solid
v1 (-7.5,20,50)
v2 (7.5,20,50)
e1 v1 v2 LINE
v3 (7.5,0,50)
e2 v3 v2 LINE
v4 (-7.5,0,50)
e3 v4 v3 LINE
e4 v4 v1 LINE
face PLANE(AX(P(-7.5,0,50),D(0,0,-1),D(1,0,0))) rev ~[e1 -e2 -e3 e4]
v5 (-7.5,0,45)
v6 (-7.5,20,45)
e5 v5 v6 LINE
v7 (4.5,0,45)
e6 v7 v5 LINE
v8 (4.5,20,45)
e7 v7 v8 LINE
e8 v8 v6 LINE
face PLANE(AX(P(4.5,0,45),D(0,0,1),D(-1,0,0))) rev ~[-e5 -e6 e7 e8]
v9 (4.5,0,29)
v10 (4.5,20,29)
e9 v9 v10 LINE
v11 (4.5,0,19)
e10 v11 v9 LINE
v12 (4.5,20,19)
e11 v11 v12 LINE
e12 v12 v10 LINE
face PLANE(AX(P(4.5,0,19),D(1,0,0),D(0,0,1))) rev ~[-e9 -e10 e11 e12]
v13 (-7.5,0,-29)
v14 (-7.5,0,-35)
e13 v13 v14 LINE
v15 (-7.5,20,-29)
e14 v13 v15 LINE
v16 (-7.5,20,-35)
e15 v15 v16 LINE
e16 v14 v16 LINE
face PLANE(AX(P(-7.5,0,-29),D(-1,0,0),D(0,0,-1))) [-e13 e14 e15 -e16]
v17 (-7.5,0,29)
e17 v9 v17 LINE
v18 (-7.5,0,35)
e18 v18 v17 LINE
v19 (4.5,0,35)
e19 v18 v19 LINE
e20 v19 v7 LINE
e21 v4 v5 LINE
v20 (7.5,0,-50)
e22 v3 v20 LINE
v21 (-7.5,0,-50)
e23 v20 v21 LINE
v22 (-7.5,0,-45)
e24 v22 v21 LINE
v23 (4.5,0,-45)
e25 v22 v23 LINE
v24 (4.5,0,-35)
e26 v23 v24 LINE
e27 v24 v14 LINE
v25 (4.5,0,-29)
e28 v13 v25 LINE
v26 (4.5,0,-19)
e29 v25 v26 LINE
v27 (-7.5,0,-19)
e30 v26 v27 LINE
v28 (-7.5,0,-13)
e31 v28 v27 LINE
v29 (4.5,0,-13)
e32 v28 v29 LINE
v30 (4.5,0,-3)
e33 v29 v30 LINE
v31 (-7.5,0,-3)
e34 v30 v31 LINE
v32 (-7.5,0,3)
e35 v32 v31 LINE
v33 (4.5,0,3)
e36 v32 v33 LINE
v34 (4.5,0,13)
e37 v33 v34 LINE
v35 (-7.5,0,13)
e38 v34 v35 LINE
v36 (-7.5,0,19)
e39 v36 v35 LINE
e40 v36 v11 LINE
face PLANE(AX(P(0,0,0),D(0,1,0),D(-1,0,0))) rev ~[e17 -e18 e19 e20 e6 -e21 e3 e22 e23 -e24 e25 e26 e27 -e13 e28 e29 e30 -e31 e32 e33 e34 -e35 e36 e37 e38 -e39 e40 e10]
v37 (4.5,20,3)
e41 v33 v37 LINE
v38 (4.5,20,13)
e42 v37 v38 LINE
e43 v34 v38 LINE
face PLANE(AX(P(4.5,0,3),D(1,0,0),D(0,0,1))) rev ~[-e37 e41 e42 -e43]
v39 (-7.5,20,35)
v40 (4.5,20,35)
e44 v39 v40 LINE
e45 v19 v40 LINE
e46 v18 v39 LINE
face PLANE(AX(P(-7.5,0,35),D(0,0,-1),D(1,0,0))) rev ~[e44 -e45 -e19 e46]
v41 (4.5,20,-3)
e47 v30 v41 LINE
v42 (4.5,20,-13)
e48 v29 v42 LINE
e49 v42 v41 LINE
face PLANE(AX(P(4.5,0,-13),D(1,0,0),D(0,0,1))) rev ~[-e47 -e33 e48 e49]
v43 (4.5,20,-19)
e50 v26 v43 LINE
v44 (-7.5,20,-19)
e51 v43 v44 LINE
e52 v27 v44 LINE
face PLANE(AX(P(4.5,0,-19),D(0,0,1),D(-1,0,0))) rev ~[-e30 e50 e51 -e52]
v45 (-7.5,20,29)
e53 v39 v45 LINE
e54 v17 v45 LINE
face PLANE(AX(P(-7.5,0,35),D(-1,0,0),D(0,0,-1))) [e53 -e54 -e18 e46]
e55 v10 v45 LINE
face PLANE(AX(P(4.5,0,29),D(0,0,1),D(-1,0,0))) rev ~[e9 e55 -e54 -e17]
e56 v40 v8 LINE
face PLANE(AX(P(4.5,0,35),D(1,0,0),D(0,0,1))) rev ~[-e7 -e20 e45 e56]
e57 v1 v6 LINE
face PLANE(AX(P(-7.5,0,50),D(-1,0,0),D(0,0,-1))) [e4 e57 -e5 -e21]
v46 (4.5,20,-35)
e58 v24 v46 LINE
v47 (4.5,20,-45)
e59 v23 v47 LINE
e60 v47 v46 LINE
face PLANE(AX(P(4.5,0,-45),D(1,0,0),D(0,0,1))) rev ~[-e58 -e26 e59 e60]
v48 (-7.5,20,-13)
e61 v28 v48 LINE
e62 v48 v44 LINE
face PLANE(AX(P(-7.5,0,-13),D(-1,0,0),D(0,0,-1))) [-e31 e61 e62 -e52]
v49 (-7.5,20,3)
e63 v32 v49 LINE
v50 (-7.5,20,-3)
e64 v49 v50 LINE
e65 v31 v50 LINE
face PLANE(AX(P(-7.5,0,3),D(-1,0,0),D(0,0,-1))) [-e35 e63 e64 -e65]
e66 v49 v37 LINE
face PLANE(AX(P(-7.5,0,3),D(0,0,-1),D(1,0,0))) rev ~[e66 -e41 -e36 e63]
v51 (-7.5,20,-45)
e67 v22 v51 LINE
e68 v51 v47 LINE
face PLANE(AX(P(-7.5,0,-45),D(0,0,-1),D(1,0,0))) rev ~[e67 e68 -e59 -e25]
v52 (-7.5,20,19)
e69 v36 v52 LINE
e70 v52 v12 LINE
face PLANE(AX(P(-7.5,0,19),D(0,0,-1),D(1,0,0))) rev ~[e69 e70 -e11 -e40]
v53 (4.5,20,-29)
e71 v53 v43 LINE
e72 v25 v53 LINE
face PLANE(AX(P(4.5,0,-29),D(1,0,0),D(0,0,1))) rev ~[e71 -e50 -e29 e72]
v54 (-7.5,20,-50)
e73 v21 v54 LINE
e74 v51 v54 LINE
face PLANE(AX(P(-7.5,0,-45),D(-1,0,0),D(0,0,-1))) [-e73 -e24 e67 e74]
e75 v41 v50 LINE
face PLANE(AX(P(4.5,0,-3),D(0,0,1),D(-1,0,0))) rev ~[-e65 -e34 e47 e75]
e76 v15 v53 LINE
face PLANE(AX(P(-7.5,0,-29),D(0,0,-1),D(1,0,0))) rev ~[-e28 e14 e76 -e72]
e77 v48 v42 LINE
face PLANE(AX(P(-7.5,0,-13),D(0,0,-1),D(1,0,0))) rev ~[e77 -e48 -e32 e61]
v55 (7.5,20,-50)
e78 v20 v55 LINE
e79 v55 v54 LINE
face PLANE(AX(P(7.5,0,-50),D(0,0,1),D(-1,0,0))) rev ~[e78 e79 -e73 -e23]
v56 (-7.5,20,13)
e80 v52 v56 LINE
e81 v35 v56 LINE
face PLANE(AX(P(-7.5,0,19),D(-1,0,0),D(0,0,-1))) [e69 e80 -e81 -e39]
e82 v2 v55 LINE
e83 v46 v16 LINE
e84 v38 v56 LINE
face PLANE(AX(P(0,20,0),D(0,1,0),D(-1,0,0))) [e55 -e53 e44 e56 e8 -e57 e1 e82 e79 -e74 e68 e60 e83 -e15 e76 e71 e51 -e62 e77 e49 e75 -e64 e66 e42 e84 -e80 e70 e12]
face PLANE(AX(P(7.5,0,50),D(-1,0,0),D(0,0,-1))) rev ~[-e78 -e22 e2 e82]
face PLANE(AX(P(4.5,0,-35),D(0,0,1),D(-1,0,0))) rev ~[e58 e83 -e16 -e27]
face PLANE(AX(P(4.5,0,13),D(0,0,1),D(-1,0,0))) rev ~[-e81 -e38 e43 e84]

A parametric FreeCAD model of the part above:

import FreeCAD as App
import Part
import Sketcher
from FreeCAD import Vector

doc = App.newDocument("Part")
body = doc.addObject("PartDesign::Body", "Body")

sketch1 = body.newObject("Sketcher::SketchObject", "Sketch")
sketch1.AttachmentSupport = (doc.getObject("XZ_Plane"), [""])
sketch1.MapMode = "FlatFace"
sketch1.addGeometry([
    Part.LineSegment(Vector(-8, 45, 0), Vector(-8, 50, 0)),
    Part.LineSegment(Vector(-8, 50, 0), Vector(8, 50, 0)),
    Part.LineSegment(Vector(8, 50, 0), Vector(8, -50, 0)),
    Part.LineSegment(Vector(8, -50, 0), Vector(-8, -50, 0)),
    Part.LineSegment(Vector(-8, -50, 0), Vector(-8, -45, 0)),
    Part.LineSegment(Vector(-8, -45, 0), Vector(4, -45, 0)),
    Part.LineSegment(Vector(4, -45, 0), Vector(4, -35, 0)),
    Part.LineSegment(Vector(4, -35, 0), Vector(-8, -35, 0)),
    Part.LineSegment(Vector(-8, -35, 0), Vector(-8, -29, 0)),
    Part.LineSegment(Vector(-8, -29, 0), Vector(4, -29, 0)),
    Part.LineSegment(Vector(4, -29, 0), Vector(4, -19, 0)),
    Part.LineSegment(Vector(4, -19, 0), Vector(-8, -19, 0)),
    Part.LineSegment(Vector(-8, -19, 0), Vector(-8, -13, 0)),
    Part.LineSegment(Vector(-8, -13, 0), Vector(4, -13, 0)),
    Part.LineSegment(Vector(4, -13, 0), Vector(4, -3, 0)),
    Part.LineSegment(Vector(4, -3, 0), Vector(-8, -3, 0)),
    Part.LineSegment(Vector(-8, -3, 0), Vector(-8, 3, 0)),
    Part.LineSegment(Vector(-8, 3, 0), Vector(4, 3, 0)),
    Part.LineSegment(Vector(4, 3, 0), Vector(4, 13, 0)),
    Part.LineSegment(Vector(4, 13, 0), Vector(-8, 13, 0)),
    Part.LineSegment(Vector(-8, 13, 0), Vector(-8, 19, 0)),
    Part.LineSegment(Vector(-8, 19, 0), Vector(4, 19, 0)),
    Part.LineSegment(Vector(4, 19, 0), Vector(4, 29, 0)),
    Part.LineSegment(Vector(4, 29, 0), Vector(-8, 29, 0)),
    Part.LineSegment(Vector(-8, 29, 0), Vector(-8, 35, 0)),
    Part.LineSegment(Vector(-8, 35, 0), Vector(4, 35, 0)),
    Part.LineSegment(Vector(4, 35, 0), Vector(4, 45, 0)),
    Part.LineSegment(Vector(4, 45, 0), Vector(-8, 45, 0)),
], False)
sketch1.addConstraint([
    Sketcher.Constraint("Coincident", 0, 2, 1, 1),
    Sketcher.Constraint("Coincident", 1, 2, 2, 1),
    Sketcher.Constraint("Coincident", 2, 2, 3, 1),
    Sketcher.Constraint("Coincident", 3, 2, 4, 1),
    Sketcher.Constraint("Coincident", 4, 2, 5, 1),
    Sketcher.Constraint("Coincident", 5, 2, 6, 1),
    Sketcher.Constraint("Coincident", 6, 2, 7, 1),
    Sketcher.Constraint("Coincident", 7, 2, 8, 1),
    Sketcher.Constraint("Coincident", 8, 2, 9, 1),
    Sketcher.Constraint("Coincident", 9, 2, 10, 1),
    Sketcher.Constraint("Coincident", 10, 2, 11, 1),
    Sketcher.Constraint("Coincident", 11, 2, 12, 1),
    Sketcher.Constraint("Coincident", 12, 2, 13, 1),
    Sketcher.Constraint("Coincident", 13, 2, 14, 1),
    Sketcher.Constraint("Coincident", 14, 2, 15, 1),
    Sketcher.Constraint("Coincident", 15, 2, 16, 1),
    Sketcher.Constraint("Coincident", 16, 2, 17, 1),
    Sketcher.Constraint("Coincident", 17, 2, 18, 1),
    Sketcher.Constraint("Coincident", 18, 2, 19, 1),
    Sketcher.Constraint("Coincident", 19, 2, 20, 1),
    Sketcher.Constraint("Coincident", 20, 2, 21, 1),
    Sketcher.Constraint("Coincident", 21, 2, 22, 1),
    Sketcher.Constraint("Coincident", 22, 2, 23, 1),
    Sketcher.Constraint("Coincident", 23, 2, 24, 1),
    Sketcher.Constraint("Coincident", 24, 2, 25, 1),
    Sketcher.Constraint("Coincident", 25, 2, 26, 1),
    Sketcher.Constraint("Coincident", 26, 2, 27, 1),
    Sketcher.Constraint("Coincident", 27, 2, 0, 1),
    Sketcher.Constraint("Vertical", 0),
    Sketcher.Constraint("Horizontal", 1),
    Sketcher.Constraint("Vertical", 2),
    Sketcher.Constraint("Horizontal", 3),
    Sketcher.Constraint("Vertical", 4),
    Sketcher.Constraint("Horizontal", 5),
    Sketcher.Constraint("Vertical", 6),
    Sketcher.Constraint("Horizontal", 7),
    Sketcher.Constraint("Vertical", 8),
    Sketcher.Constraint("Horizontal", 9),
    Sketcher.Constraint("Vertical", 10),
    Sketcher.Constraint("Horizontal", 11),
    Sketcher.Constraint("Vertical", 12),
    Sketcher.Constraint("Horizontal", 13),
    Sketcher.Constraint("Vertical", 14),
    Sketcher.Constraint("Horizontal", 15),
    Sketcher.Constraint("Vertical", 16),
    Sketcher.Constraint("Horizontal", 17),
    Sketcher.Constraint("Vertical", 18),
    Sketcher.Constraint("Horizontal", 19),
    Sketcher.Constraint("Vertical", 20),
    Sketcher.Constraint("Horizontal", 21),
    Sketcher.Constraint("Vertical", 22),
    Sketcher.Constraint("Horizontal", 23),
    Sketcher.Constraint("Vertical", 24),
    Sketcher.Constraint("Horizontal", 25),
    Sketcher.Constraint("Vertical", 26),
    Sketcher.Constraint("Horizontal", 27),
    Sketcher.Constraint("Symmetric", 0, 2, 2, 2, -1, 1),
    Sketcher.Constraint("Symmetric", 14, 2, 17, 2, -1),
    Sketcher.Constraint("Symmetric", 12, 2, 19, 2, -1),
    Sketcher.Constraint("Symmetric", 10, 2, 21, 2, -1),
    Sketcher.Constraint("Symmetric", 8, 2, 23, 2, -1),
    Sketcher.Constraint("Symmetric", 6, 2, 25, 2, -1),
    Sketcher.Constraint("Symmetric", 4, 2, 27, 2, -1),
    Sketcher.Constraint("Vertical", 4, 2, 7, 2),
    Sketcher.Constraint("Vertical", 6, 2, 9, 2),
    Sketcher.Constraint("Vertical", 8, 2, 11, 2),
    Sketcher.Constraint("Vertical", 10, 2, 13, 2),
    Sketcher.Constraint("Vertical", 12, 2, 15, 2),
    Sketcher.Constraint("Equal", 6, 10),
    Sketcher.Constraint("Equal", 8, 12),
    Sketcher.Constraint("Equal", 10, 14),
    Sketcher.Constraint("Equal", 12, 16),
    Sketcher.Constraint("DistanceX", 1, 1, 1, 2, 15.0),
    Sketcher.Constraint("DistanceX", 5, 1, 5, 2, 12.0),
    Sketcher.Constraint("DistanceY", 0, 1, 0, 2, 5.0),
    Sketcher.Constraint("DistanceY", 2, 2, 2, 1, 100.0),
    Sketcher.Constraint("DistanceY", 6, 1, 6, 2, 10.0),
])
pad1 = body.newObject("PartDesign::Pad", "Pad")
pad1.Profile = sketch1
pad1.Length = 20
pad1.Reversed = True

doc.recompute()
